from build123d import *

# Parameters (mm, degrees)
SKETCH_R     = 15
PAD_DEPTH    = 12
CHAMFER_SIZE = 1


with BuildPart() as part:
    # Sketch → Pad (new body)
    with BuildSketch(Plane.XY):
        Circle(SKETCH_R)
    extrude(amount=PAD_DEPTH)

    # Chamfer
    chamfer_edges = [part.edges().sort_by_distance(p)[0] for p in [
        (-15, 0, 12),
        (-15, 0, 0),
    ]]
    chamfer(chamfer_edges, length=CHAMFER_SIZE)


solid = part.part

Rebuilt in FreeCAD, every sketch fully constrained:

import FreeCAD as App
import Part
import Sketcher
from FreeCAD import Vector
Q = App.Units.Quantity


def edges_at(feature, points):
    """Names of the edges that pass closest to the given points."""
    edges = feature.Shape.Edges
    near = lambda p: min(range(len(edges)), key=lambda i: edges[i].distToShape(Part.Vertex(*p))[0])
    return sorted({f"Edge{near(p) + 1}" for p in points})

doc = App.newDocument("Part")
body = doc.addObject("PartDesign::Body", "Body")

sketch1 = body.newObject("Sketcher::SketchObject", "Sketch")
sketch1.AttachmentSupport = (doc.getObject("XY_Plane"), [""])
sketch1.MapMode = "FlatFace"
sketch1.addGeometry(Part.Circle(Vector(0, 0, 0), Vector(0, 0, 1), 15), False)
sketch1.addConstraint(Sketcher.Constraint("Coincident", 0, 3, -1, 1))
sketch1.addConstraint(Sketcher.Constraint("Diameter", 0, Q("30 mm")))
pad1 = body.newObject("PartDesign::Pad", "Pad")
pad1.Profile = sketch1
pad1.Length = 12
doc.recompute()

chamfer = body.newObject("PartDesign::Chamfer", "Chamfer")
chamfer.Base = (pad1, edges_at(pad1, [(-15, 0, 12), (-15, 0, 0)]))
chamfer.Size = 1

doc.recompute()
